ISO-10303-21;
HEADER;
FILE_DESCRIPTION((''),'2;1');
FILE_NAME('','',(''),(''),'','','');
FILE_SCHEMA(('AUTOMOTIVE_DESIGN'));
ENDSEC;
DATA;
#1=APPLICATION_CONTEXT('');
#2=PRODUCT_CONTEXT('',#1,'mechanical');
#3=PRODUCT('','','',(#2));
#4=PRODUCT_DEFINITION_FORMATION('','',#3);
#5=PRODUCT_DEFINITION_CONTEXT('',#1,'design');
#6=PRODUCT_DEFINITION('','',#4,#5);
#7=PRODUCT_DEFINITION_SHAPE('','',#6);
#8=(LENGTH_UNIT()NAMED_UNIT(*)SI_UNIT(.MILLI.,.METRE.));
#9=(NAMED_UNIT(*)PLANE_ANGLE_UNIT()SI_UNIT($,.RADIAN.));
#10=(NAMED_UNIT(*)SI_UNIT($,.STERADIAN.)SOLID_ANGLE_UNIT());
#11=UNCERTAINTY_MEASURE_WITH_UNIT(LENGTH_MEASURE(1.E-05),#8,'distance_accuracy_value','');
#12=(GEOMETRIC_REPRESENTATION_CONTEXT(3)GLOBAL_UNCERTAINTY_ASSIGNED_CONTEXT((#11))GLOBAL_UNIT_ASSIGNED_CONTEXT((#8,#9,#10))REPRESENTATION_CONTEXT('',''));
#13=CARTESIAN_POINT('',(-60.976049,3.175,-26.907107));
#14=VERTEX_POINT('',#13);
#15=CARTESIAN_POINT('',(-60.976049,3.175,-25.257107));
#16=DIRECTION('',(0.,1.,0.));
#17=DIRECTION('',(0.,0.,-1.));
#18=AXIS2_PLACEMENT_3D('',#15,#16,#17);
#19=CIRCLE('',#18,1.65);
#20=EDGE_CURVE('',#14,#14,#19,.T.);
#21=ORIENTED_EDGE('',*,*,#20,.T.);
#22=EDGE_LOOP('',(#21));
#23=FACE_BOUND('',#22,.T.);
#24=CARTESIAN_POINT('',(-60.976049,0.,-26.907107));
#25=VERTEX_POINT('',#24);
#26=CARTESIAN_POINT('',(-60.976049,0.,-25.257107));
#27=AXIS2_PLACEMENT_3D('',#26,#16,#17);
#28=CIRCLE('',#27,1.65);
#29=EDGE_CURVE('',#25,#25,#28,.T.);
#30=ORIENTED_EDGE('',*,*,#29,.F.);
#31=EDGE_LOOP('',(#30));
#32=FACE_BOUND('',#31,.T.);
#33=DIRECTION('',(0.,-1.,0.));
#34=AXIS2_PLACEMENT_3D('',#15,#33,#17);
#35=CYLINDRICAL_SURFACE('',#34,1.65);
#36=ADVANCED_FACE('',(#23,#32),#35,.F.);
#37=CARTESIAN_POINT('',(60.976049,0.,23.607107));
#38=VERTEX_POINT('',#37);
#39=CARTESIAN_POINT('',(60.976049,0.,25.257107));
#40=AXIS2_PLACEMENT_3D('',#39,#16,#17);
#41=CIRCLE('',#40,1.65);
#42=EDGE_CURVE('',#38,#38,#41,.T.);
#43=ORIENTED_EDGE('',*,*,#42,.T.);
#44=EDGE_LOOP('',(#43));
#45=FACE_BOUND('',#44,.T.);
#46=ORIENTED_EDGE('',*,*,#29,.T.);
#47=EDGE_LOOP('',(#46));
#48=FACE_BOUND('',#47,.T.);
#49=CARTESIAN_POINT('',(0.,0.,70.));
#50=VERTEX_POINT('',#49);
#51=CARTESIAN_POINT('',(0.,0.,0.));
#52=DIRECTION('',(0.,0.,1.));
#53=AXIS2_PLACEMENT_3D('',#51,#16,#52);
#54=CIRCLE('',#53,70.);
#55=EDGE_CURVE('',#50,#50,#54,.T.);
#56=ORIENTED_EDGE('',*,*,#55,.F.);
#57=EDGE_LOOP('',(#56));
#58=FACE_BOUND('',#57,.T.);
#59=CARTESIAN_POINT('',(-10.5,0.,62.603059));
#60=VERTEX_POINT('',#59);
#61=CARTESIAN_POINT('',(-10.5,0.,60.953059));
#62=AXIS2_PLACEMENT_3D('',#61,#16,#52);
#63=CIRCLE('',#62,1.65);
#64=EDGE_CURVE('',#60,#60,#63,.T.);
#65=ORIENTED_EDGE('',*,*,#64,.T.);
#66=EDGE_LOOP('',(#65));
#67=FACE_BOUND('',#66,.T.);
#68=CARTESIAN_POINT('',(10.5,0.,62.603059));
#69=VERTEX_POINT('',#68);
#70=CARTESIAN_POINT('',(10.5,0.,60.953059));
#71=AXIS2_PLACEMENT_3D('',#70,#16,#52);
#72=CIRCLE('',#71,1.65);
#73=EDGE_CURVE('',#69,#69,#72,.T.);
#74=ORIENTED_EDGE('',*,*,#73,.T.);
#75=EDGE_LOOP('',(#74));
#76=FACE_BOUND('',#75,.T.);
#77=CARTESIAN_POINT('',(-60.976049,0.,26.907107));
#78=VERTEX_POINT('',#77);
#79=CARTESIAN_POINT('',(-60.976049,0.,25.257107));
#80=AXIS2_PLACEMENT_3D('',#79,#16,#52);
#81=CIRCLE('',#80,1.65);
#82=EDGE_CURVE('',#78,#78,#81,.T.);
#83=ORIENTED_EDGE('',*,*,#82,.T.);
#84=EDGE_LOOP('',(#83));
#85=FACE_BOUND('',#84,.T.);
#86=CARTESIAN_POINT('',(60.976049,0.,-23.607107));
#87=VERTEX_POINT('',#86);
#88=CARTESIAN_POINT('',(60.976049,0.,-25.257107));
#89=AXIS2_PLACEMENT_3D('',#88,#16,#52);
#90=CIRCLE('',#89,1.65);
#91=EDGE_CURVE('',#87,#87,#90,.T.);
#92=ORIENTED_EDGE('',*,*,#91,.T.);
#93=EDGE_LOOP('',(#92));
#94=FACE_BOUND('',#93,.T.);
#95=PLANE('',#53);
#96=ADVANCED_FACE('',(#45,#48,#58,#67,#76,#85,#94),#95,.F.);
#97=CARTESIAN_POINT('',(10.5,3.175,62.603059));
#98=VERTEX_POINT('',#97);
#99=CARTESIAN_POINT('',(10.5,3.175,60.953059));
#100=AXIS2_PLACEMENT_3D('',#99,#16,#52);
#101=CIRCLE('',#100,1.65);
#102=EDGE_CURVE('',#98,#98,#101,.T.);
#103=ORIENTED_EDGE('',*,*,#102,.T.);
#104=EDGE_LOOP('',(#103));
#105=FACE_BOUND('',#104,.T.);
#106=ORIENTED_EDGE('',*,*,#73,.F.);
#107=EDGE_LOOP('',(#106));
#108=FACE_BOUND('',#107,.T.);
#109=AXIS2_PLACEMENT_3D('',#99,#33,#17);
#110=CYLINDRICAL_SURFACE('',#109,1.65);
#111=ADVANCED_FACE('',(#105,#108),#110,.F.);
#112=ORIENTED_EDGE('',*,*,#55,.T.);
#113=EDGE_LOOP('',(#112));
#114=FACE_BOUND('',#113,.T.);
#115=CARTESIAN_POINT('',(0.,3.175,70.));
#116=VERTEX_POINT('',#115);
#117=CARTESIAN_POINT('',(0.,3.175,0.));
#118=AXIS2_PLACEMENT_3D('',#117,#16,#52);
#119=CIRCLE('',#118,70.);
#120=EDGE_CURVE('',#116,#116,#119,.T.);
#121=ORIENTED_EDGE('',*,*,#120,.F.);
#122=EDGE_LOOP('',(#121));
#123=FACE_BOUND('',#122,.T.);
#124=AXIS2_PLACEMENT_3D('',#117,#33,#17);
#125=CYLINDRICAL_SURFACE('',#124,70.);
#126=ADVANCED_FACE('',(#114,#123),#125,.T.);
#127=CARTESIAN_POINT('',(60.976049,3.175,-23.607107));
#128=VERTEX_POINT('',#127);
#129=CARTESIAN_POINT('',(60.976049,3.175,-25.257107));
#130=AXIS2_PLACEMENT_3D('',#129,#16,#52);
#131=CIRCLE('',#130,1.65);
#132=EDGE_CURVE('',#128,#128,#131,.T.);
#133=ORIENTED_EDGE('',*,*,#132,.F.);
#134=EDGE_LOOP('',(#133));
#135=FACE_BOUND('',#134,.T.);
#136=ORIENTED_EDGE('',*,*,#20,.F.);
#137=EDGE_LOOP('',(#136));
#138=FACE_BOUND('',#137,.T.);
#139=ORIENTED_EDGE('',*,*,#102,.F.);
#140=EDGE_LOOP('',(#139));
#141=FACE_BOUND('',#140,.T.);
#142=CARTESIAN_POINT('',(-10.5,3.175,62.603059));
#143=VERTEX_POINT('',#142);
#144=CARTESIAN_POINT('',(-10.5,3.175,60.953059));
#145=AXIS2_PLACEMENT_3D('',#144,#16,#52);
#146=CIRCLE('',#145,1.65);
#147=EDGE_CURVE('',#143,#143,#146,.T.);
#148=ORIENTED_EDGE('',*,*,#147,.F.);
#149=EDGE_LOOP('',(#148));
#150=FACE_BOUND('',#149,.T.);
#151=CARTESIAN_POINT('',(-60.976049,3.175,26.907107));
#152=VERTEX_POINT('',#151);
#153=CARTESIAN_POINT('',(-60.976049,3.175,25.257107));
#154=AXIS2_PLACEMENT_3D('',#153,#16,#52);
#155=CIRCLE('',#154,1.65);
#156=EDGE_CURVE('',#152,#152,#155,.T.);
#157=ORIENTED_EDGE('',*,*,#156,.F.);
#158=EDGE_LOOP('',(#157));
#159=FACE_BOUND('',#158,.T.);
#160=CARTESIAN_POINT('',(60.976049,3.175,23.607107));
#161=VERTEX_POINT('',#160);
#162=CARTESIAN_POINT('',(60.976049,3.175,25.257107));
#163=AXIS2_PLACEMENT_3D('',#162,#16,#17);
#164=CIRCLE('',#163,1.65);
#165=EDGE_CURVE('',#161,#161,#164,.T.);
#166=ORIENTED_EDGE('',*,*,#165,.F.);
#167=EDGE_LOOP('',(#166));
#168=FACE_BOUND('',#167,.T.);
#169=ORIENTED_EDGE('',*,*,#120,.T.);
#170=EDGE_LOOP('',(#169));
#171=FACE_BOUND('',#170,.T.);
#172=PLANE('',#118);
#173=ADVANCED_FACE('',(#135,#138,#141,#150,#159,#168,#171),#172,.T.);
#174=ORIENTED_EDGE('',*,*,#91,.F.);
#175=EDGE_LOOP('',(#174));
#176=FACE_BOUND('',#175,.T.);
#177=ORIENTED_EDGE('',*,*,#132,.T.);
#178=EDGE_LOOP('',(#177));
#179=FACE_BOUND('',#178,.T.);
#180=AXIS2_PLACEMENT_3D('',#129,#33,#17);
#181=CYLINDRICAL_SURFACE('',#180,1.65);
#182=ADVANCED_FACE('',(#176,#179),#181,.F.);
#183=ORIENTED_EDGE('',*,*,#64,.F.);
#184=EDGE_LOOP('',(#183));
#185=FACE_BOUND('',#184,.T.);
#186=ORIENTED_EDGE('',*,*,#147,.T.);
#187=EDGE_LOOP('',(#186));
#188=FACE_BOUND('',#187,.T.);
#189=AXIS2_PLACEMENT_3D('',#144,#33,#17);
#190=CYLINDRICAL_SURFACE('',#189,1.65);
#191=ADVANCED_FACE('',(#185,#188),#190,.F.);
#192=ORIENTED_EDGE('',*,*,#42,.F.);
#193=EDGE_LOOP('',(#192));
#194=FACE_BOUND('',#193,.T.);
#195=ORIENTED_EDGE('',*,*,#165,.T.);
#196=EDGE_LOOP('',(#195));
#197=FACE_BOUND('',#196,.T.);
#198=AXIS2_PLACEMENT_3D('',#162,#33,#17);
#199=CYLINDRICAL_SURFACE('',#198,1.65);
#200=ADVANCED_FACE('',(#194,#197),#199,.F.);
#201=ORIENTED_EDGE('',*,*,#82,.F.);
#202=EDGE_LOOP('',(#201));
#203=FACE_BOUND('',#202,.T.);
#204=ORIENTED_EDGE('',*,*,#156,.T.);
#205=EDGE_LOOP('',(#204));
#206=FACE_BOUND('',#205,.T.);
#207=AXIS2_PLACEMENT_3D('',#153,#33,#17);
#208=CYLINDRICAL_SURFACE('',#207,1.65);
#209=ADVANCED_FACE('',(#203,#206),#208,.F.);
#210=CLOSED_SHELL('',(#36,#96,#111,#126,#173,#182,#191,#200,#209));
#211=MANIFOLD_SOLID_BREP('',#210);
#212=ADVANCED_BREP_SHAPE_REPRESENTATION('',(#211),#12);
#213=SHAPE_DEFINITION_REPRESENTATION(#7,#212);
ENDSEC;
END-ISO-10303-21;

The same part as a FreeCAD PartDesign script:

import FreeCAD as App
import Part
import Sketcher

V = App.Vector

doc = App.newDocument("Part")
body = doc.addObject("PartDesign::Body", "Body")

sketch1 = doc.addObject("Sketcher::SketchObject", "Sketch")
body.addObject(sketch1)
sketch1.AttachmentSupport = (doc.XZ_Plane, [""])
sketch1.MapMode = "FlatFace"
sketch1.addGeometry(Part.Circle(V(0, 0, 0), V(0, 0, 1), 70), False)
sketch1.addConstraint(Sketcher.Constraint("Coincident", 0, 3, -1, 1))
sketch1.addConstraint(Sketcher.Constraint("Diameter", 0, 140.0))
pad1 = doc.addObject("PartDesign::Pad", "Pad")
body.addObject(pad1)
pad1.Profile = sketch1
pad1.Length = 3.175
pad1.Reversed = True

sketch2 = doc.addObject("Sketcher::SketchObject", "Sketch001")
body.addObject(sketch2)
sketch2.AttachmentSupport = (doc.XZ_Plane, [""])
sketch2.MapMode = "FlatFace"
sketch2.addGeometry(Part.Circle(V(61, -25.3, 0), V(0, 0, 1), 1.6), False)
sketch2.addGeometry(Part.Circle(V(61, 25.3, 0), V(0, 0, 1), 1.6), False)
sketch2.addGeometry(Part.Circle(V(-61, 25.3, 0), V(0, 0, 1), 1.6), False)
sketch2.addGeometry(Part.Circle(V(-61, -25.3, 0), V(0, 0, 1), 1.6), False)
sketch2.addGeometry(Part.Circle(V(10.5, 61, 0), V(0, 0, 1), 1.6), False)
sketch2.addGeometry(Part.Circle(V(-10.5, 61, 0), V(0, 0, 1), 1.6), False)
sketch2.addConstraint(Sketcher.Constraint("Equal", 0, 1))
sketch2.addConstraint(Sketcher.Constraint("Equal", 1, 2))
sketch2.addConstraint(Sketcher.Constraint("Equal", 2, 3))
sketch2.addConstraint(Sketcher.Constraint("Equal", 3, 4))
sketch2.addConstraint(Sketcher.Constraint("Equal", 4, 5))
sketch2.addConstraint(Sketcher.Constraint("Symmetric", 0, 3, 2, 3, -1, 1))
sketch2.addConstraint(Sketcher.Constraint("Symmetric", 1, 3, 3, 3, -1, 1))
sketch2.addConstraint(Sketcher.Constraint("Symmetric", 1, 3, 2, 3, -2))
sketch2.addConstraint(Sketcher.Constraint("Symmetric", 4, 3, 5, 3, -2))
sketch2.addConstraint(Sketcher.Constraint("Diameter", 0, 3.3))
sketch2.addConstraint(Sketcher.Constraint("DistanceX", 5, 3, 4, 3, 21.0))
sketch2.addConstraint(Sketcher.Constraint("DistanceX", 2, 3, 1, 3, 121.952098))
sketch2.addConstraint(Sketcher.Constraint("DistanceY", -1, 1, 4, 3, 60.953059))
sketch2.addConstraint(Sketcher.Constraint("DistanceY", 0, 3, -1, 1, 25.257107))
pocket1 = doc.addObject("PartDesign::Pocket", "Pocket")
body.addObject(pocket1)
pocket1.Profile = sketch2
pocket1.Length = 3.175

doc.recompute()
